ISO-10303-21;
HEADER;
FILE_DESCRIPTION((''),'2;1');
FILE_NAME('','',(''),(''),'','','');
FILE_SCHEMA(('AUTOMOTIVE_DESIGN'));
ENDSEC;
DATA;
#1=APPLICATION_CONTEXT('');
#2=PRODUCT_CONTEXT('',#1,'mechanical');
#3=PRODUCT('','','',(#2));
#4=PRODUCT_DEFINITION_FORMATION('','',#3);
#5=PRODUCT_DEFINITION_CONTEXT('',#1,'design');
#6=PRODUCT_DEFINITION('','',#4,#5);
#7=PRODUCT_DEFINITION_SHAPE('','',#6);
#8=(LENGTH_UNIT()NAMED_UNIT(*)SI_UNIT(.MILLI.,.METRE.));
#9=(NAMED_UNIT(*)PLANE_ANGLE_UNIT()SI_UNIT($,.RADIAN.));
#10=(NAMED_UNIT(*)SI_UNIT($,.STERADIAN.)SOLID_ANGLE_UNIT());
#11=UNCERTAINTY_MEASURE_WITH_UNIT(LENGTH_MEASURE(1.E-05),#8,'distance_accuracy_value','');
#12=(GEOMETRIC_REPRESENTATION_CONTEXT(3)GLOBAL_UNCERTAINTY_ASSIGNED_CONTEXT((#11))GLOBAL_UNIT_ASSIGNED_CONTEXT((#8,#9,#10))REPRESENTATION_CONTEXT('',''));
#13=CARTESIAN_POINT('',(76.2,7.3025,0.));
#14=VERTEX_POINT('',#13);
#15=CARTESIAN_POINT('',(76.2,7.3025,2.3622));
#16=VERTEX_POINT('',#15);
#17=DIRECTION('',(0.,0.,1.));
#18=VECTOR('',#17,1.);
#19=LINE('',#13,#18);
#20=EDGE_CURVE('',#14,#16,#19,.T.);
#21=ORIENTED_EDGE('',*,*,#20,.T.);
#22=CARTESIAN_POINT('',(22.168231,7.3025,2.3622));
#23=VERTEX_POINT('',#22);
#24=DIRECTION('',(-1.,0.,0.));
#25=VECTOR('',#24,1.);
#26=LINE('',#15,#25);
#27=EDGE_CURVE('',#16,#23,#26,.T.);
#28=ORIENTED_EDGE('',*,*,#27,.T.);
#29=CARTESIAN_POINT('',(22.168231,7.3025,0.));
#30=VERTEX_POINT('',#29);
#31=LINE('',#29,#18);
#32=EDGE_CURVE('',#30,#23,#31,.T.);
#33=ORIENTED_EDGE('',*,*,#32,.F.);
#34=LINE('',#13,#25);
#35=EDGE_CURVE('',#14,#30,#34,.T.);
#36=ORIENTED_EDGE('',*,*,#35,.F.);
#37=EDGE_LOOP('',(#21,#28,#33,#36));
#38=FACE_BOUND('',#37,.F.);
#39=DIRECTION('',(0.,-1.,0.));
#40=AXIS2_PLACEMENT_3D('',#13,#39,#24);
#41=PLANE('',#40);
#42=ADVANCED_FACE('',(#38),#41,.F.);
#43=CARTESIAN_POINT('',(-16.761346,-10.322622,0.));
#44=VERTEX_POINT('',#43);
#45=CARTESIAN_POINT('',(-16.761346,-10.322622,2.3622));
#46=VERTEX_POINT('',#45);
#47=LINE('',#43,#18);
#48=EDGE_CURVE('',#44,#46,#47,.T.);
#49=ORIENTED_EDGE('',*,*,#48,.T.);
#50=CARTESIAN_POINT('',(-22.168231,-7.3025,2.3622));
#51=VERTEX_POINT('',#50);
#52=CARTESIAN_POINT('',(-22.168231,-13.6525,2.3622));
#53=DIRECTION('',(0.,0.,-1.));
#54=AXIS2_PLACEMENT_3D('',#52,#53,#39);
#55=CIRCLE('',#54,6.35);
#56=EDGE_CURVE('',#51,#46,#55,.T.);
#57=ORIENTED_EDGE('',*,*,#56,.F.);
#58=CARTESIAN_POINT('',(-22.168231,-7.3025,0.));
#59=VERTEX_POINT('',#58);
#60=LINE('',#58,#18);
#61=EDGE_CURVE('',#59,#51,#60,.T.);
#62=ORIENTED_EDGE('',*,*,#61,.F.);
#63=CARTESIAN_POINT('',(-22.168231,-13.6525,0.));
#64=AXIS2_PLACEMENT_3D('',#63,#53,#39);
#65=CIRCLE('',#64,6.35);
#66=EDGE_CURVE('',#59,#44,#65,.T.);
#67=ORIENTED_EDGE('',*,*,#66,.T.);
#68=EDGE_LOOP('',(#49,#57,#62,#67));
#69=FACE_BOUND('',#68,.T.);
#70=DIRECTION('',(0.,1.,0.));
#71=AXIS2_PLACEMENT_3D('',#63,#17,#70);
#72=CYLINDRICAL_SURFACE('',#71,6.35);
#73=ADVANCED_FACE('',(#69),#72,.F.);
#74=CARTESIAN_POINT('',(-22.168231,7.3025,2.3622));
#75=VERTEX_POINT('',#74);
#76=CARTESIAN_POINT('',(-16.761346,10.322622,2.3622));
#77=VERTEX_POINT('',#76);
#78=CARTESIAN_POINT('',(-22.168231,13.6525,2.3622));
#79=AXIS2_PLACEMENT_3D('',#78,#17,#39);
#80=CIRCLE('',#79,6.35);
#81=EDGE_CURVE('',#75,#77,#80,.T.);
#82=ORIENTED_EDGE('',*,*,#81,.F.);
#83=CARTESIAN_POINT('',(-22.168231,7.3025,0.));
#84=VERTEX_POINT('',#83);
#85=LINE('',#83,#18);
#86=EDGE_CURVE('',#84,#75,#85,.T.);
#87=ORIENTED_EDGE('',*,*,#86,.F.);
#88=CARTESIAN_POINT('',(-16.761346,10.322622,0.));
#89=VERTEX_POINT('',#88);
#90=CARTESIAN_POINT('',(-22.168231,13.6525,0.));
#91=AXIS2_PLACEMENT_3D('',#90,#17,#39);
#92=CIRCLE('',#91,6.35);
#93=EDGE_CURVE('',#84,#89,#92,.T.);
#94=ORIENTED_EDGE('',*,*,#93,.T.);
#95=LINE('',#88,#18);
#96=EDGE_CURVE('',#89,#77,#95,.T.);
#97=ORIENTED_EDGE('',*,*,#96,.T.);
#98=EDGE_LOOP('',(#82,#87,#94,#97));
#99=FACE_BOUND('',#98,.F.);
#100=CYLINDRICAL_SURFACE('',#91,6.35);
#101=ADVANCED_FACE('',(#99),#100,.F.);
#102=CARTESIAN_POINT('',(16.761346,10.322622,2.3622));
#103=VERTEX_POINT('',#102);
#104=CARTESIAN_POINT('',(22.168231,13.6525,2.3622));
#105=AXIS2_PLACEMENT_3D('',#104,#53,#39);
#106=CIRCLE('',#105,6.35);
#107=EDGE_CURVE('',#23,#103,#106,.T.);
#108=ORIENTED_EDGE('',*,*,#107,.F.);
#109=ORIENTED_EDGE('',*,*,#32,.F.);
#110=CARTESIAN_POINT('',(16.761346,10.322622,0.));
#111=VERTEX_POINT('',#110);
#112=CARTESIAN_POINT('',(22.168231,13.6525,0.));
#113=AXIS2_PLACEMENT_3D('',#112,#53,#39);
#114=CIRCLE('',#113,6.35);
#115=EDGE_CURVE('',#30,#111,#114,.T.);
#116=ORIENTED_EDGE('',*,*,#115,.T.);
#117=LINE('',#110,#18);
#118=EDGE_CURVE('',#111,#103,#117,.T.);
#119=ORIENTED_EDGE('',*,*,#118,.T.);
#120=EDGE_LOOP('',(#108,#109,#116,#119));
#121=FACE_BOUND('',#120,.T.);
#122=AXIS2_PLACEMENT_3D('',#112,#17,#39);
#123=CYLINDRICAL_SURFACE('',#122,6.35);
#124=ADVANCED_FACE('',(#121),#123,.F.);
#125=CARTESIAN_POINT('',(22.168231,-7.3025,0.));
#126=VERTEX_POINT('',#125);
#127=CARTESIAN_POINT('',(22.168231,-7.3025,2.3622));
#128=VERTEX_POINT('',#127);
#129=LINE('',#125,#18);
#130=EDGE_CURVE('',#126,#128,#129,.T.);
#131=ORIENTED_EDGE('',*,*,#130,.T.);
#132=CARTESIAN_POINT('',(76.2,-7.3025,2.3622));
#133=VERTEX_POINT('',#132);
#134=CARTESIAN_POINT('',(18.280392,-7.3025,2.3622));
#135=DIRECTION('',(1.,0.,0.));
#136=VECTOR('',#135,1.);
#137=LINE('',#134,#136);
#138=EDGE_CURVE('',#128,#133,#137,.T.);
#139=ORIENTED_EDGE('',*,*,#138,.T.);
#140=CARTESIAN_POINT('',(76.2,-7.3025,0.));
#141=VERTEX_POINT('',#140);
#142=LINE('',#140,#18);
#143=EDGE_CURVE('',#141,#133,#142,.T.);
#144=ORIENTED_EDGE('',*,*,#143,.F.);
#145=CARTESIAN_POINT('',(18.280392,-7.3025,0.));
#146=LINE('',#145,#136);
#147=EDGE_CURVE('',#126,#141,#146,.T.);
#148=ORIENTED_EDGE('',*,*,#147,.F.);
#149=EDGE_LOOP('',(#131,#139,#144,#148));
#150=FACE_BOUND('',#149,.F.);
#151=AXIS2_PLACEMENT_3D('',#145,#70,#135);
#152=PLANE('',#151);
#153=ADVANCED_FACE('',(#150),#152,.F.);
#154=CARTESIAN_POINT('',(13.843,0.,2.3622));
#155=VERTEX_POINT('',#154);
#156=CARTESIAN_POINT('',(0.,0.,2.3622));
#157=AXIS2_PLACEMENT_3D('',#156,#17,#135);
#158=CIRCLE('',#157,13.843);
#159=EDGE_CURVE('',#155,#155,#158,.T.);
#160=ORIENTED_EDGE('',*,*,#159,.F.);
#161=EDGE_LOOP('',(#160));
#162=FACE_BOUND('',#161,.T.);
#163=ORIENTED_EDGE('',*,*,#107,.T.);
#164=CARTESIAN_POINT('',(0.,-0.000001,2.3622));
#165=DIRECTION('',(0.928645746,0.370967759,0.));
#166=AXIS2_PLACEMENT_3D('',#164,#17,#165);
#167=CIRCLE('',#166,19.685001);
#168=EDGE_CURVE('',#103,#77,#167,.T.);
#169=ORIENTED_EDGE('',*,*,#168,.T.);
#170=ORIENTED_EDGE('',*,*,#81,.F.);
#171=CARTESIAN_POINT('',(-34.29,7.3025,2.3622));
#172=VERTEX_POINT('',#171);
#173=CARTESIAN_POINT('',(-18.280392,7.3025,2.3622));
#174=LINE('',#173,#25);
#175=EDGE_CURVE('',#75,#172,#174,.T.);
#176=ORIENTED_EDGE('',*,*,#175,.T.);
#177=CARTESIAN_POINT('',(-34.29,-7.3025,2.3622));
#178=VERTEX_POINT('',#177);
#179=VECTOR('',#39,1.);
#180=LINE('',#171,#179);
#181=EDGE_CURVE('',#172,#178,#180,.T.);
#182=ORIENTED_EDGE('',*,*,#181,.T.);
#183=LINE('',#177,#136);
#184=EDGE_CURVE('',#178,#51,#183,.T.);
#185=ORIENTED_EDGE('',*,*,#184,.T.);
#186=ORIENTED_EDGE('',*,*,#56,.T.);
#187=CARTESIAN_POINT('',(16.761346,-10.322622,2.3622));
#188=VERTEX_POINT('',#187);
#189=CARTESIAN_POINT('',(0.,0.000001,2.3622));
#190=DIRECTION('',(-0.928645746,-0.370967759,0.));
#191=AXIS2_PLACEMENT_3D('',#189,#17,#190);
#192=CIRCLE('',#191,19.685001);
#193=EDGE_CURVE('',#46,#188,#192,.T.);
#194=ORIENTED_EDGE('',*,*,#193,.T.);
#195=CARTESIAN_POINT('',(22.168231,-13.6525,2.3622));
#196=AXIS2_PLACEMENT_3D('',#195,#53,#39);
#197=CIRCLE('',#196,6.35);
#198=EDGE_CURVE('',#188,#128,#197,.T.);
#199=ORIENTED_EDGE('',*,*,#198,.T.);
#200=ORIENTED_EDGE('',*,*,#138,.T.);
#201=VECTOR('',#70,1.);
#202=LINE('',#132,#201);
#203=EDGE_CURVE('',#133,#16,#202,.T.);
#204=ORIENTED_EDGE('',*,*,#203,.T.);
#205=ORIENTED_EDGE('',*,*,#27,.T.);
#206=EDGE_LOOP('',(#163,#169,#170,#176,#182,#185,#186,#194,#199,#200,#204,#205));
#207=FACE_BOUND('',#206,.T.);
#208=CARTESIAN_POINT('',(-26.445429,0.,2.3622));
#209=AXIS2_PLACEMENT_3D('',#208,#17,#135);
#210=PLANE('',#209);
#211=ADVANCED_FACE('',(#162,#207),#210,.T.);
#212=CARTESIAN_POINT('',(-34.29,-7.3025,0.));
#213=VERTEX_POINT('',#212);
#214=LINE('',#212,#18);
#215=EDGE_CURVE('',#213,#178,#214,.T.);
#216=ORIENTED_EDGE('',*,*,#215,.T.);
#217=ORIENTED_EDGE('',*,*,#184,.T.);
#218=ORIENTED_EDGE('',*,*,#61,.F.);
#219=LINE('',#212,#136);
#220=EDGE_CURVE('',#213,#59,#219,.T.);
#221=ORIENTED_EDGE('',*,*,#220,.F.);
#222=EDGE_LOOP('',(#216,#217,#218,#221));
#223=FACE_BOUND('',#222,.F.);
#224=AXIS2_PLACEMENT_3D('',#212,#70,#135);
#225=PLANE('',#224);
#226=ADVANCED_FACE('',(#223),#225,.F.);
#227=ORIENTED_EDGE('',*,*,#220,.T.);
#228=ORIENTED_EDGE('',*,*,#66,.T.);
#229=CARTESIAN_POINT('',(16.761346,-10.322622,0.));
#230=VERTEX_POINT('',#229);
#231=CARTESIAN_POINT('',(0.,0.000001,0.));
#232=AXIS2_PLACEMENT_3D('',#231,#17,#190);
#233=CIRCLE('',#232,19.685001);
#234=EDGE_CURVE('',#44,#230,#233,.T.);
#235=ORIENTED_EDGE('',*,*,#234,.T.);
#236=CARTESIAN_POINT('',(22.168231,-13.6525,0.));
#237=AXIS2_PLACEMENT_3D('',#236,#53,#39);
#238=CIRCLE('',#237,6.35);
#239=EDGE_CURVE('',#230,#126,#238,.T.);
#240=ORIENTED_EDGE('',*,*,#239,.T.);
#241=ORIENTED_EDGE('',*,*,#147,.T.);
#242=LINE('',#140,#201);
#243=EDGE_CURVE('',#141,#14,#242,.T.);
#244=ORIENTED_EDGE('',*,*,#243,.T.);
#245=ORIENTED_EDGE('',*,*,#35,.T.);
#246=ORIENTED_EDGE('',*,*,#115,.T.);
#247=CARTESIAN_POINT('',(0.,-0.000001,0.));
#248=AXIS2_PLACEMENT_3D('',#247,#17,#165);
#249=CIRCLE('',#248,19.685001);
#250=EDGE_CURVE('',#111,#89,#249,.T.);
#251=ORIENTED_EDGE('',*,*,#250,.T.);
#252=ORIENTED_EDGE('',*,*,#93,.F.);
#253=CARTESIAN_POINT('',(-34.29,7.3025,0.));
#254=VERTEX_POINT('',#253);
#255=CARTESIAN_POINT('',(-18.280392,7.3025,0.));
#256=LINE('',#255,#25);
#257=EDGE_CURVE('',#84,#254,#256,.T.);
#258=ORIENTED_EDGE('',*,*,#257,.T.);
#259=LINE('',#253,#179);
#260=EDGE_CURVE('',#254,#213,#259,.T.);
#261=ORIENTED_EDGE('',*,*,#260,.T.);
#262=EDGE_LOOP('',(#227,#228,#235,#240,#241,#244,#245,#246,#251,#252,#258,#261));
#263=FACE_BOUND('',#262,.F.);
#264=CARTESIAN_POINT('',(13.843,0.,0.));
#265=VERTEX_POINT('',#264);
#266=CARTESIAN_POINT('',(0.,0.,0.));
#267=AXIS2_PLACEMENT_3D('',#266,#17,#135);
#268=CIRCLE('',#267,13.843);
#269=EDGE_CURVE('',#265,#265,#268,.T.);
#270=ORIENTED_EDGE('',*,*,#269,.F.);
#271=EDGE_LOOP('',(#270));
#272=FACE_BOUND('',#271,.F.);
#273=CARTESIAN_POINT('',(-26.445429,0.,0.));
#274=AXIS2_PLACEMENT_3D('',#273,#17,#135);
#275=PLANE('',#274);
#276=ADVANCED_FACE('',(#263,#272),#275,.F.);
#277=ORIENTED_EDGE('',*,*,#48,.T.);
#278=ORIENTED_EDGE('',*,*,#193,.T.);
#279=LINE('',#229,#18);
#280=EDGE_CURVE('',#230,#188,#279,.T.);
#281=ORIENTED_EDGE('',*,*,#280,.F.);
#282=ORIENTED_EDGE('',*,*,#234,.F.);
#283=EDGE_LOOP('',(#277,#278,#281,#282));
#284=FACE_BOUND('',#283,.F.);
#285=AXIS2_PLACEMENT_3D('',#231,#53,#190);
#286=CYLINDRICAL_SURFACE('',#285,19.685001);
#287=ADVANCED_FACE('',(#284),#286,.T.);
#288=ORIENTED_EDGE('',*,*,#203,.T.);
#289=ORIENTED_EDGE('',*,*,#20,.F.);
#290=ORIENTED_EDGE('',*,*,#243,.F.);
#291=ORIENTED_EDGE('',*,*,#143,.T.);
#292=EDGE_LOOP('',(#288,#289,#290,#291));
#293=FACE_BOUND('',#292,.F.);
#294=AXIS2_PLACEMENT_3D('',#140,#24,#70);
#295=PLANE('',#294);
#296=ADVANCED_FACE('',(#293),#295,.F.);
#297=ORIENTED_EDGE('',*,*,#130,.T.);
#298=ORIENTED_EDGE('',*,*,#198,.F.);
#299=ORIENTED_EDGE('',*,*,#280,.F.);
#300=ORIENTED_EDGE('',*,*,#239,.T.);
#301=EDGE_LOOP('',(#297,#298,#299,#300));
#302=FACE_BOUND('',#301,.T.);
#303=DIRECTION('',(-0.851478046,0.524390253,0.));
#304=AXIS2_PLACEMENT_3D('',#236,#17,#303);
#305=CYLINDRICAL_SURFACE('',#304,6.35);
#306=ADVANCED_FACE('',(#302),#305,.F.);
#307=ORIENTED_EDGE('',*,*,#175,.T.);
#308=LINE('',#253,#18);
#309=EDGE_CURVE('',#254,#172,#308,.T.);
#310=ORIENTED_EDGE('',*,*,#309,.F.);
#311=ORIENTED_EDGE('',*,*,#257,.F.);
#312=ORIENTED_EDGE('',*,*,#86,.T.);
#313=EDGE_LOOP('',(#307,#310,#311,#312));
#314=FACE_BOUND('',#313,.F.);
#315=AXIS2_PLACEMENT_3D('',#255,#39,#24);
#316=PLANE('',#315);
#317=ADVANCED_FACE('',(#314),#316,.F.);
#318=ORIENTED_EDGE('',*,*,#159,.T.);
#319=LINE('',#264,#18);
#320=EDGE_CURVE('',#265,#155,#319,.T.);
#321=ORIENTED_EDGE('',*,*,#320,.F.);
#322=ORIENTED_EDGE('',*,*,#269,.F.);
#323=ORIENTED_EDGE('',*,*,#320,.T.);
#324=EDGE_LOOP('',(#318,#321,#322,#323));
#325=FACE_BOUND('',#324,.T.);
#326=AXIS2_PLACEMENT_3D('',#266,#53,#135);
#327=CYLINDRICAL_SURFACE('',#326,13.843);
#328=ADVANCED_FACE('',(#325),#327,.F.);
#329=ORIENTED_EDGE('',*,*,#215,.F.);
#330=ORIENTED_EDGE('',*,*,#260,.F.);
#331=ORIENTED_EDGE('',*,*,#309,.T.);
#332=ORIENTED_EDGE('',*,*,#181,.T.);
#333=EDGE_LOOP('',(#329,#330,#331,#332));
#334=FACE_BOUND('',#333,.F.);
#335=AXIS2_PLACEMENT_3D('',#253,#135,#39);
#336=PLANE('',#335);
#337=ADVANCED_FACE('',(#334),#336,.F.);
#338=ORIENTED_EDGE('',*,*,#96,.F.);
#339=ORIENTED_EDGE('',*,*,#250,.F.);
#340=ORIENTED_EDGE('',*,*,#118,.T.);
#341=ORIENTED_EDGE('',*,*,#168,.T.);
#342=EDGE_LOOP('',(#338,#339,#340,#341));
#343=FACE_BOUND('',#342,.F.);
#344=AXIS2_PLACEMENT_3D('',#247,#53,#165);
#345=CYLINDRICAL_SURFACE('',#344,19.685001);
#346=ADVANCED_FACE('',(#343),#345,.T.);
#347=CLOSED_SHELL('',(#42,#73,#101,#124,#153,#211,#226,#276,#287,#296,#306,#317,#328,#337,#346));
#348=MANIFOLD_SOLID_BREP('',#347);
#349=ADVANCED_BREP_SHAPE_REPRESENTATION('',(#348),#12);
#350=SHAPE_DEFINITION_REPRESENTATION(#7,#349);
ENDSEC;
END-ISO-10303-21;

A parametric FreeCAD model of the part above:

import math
import FreeCAD as App
import Part
import Sketcher
Q = App.Units.Quantity


def edges_at(feature, points):
    """Names of the edges that pass closest to the given points."""
    edges = feature.Shape.Edges
    near = lambda p: min(range(len(edges)), key=lambda i: edges[i].distToShape(Part.Vertex(*p))[0])
    return sorted({f"Edge{near(p) + 1}" for p in points})

doc = App.newDocument("Part")
body = doc.addObject("PartDesign::Body", "Body")

# Sketch on XY plane
sketch1 = body.newObject("Sketcher::SketchObject", "Sketch")
sketch1.AttachmentSupport = (doc.getObject("XY_Plane"), [""])
sketch1.MapMode = "FlatFace"
sketch1.addGeometry([
    Part.LineSegment(App.Vector(-18.280392, 7.3025, 0), App.Vector(-34.29, 7.3025, 0)),  # 0
    Part.LineSegment(App.Vector(-34.29, 7.3025, 0), App.Vector(-34.29, -7.3025, 0)),  # 1
    Part.LineSegment(App.Vector(-34.29, -7.3025, 0), App.Vector(-18.280392, -7.3025, 0)),  # 2
    Part.ArcOfCircle(Part.Circle(App.Vector(0, 0.000001, 0), App.Vector(0, 0, 1), 19.685001), math.radians(-158.224686), math.radians(-21.775314)),  # 3
    Part.LineSegment(App.Vector(18.280392, -7.3025, 0), App.Vector(76.2, -7.3025, 0)),  # 4
    Part.LineSegment(App.Vector(76.2, -7.3025, 0), App.Vector(76.2, 7.3025, 0)),  # 5
    Part.LineSegment(App.Vector(76.2, 7.3025, 0), App.Vector(18.280392, 7.3025, 0)),  # 6
    Part.ArcOfCircle(Part.Circle(App.Vector(0, -0.000001, 0), App.Vector(0, 0, 1), 19.685001), math.radians(21.775314), math.radians(158.224686)),  # 7
    Part.Circle(App.Vector(0, 0, 0), App.Vector(0, 0, 1), 13.843),  # 8
], False)
sketch1.addConstraint([
    Sketcher.Constraint("Coincident", 0, 2, 1, 1),
    Sketcher.Constraint("Coincident", 1, 2, 2, 1),
    Sketcher.Constraint("Coincident", 2, 2, 3, 1),
    Sketcher.Constraint("Coincident", 3, 2, 4, 1),
    Sketcher.Constraint("Coincident", 4, 2, 5, 1),
    Sketcher.Constraint("Coincident", 5, 2, 6, 1),
    Sketcher.Constraint("Coincident", 6, 2, 7, 1),
    Sketcher.Constraint("Coincident", 7, 2, 0, 1),
    Sketcher.Constraint("Horizontal", 0),
    Sketcher.Constraint("Vertical", 1),
    Sketcher.Constraint("Horizontal", 2),
    Sketcher.Constraint("Horizontal", 4),
    Sketcher.Constraint("Vertical", 5),
    Sketcher.Constraint("Horizontal", 6),
    Sketcher.Constraint("Coincident", 3, 3, -1, 1),
    Sketcher.Constraint("Coincident", 7, 3, -1, 1),
    Sketcher.Constraint("Coincident", 8, 3, -1, 1),
    Sketcher.Constraint("Equal", 3, 7),
    Sketcher.Constraint("Horizontal", 2, 2, 3, 2),
    Sketcher.Constraint("Horizontal", 0, 2, 5, 2),
    Sketcher.Constraint("Vertical", 3, 2, 6, 2),
    Sketcher.Constraint("Diameter", 8, Q("1.09 in")),
    Sketcher.Constraint("DistanceX", -1, 1, 4, 2, Q("3 in")),
    Sketcher.Constraint("Radius", 3, Q("0.775 in")),
    Sketcher.Constraint("DistanceY", 1, 2, 1, 1, Q("0.575 in")),
    Sketcher.Constraint("DistanceX", 0, 2, -1, 1, Q("1.35 in")),
])
pad1 = body.newObject("PartDesign::Pad", "Pad")
pad1.Profile = sketch1
pad1.Length = Q("0.093 in")
doc.recompute()

fillet = body.newObject("PartDesign::Fillet", "Fillet")
fillet.Base = (pad1, edges_at(pad1, [
    (18.28, -7.303, 1.181),
    (-18.28, -7.303, 1.181),
    (-18.28, 7.303, 1.181),
    (18.28, 7.303, 1.181),
]))
fillet.Radius = Q("0.25 in")

doc.recompute()
